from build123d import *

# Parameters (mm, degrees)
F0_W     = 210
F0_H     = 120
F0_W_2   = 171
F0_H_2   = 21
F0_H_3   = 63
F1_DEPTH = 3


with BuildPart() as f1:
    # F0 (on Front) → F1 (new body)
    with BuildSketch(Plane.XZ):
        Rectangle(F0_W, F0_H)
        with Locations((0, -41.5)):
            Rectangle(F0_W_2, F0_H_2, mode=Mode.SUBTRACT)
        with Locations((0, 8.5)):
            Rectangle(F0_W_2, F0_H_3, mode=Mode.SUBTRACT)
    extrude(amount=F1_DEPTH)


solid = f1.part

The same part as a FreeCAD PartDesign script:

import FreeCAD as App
import Part
import Sketcher


def add_polygon(sketch, points):
    """Adds a closed chain of lines whose ends are joined by coincident constraints."""
    first, n = sketch.GeometryCount, len(points)
    for a, b in zip(points, points[1:] + points[:1]):
        sketch.addGeometry(Part.LineSegment(App.Vector(*a, 0), App.Vector(*b, 0)), False)
    for i in range(n):
        sketch.addConstraint(Sketcher.Constraint("Coincident", first + i, 2, first + (i + 1) % n, 1))

doc = App.newDocument("Part")
params = doc.addObject("Spreadsheet::Sheet", "Params")
for row, (alias, value) in enumerate([
    ("sketch1_width", "210 mm"),
    ("sketch1_width2", "171 mm"),
    ("sketch1_height", "120 mm"),
    ("sketch1_height2", "21 mm"),
    ("sketch1_height3", "63 mm"),
    ("pad1_length", "3 mm"),
], start=1):
    params.set(f"A{row}", alias)
    params.set(f"B{row}", "=" + value)
    params.setAlias(f"B{row}", alias)

body = doc.addObject("PartDesign::Body", "Body")

# Sketch on XZ plane
sketch1 = body.newObject("Sketcher::SketchObject", "Sketch")
sketch1.AttachmentSupport = (doc.getObject("XZ_Plane"), [""])
sketch1.MapMode = "FlatFace"
add_polygon(sketch1, [(-105, 60), (-105, -60), (105, -60), (105, 60)])  # lines 0-3
add_polygon(sketch1, [(86, -52), (-86, -52), (-86, -31), (86, -31)])  # lines 4-7
add_polygon(sketch1, [(86, -23), (-86, -23), (-86, 40), (86, 40)])  # lines 8-11
sketch1.addConstraint(Sketcher.Constraint("Vertical", 0))
sketch1.addConstraint(Sketcher.Constraint("Horizontal", 1))
sketch1.addConstraint(Sketcher.Constraint("Vertical", 2))
sketch1.addConstraint(Sketcher.Constraint("Horizontal", 3))
sketch1.addConstraint(Sketcher.Constraint("Horizontal", 4))
sketch1.addConstraint(Sketcher.Constraint("Vertical", 5))
sketch1.addConstraint(Sketcher.Constraint("Horizontal", 6))
sketch1.addConstraint(Sketcher.Constraint("Vertical", 7))
sketch1.addConstraint(Sketcher.Constraint("Horizontal", 8))
sketch1.addConstraint(Sketcher.Constraint("Vertical", 9))
sketch1.addConstraint(Sketcher.Constraint("Horizontal", 10))
sketch1.addConstraint(Sketcher.Constraint("Vertical", 11))
sketch1.addConstraint(Sketcher.Constraint("Symmetric", 0, 2, 2, 2, -1, 1))
sketch1.addConstraint(Sketcher.Constraint("Vertical", 5, 2, 8, 2))
sketch1.addConstraint(Sketcher.Constraint("Vertical", 7, 2, 10, 2))
sketch1.addConstraint(Sketcher.Constraint("DistanceX", 1, 1, 1, 2, 210.0))
sketch1.addConstraint(Sketcher.Constraint("DistanceX", 4, 2, 4, 1, 171.0))
sketch1.addConstraint(Sketcher.Constraint("DistanceY", 0, 2, 0, 1, 120.0))
sketch1.addConstraint(Sketcher.Constraint("DistanceY", 5, 1, 5, 2, 21.0))
sketch1.addConstraint(Sketcher.Constraint("DistanceY", 9, 1, 9, 2, 63.0))
sketch1.addConstraint(Sketcher.Constraint("DistanceY", 4, 2, -1, 1, 52.0))
sketch1.addConstraint(Sketcher.Constraint("DistanceY", 8, 2, -1, 1, 23.0))
sketch1.addConstraint(Sketcher.Constraint("DistanceX", 4, 2, -1, 1, 85.5))
sketch1.setExpression("Constraints[27]", "Params.sketch1_width")
sketch1.setExpression("Constraints[28]", "Params.sketch1_width2")
sketch1.setExpression("Constraints[29]", "Params.sketch1_height")
sketch1.setExpression("Constraints[30]", "Params.sketch1_height2")
sketch1.setExpression("Constraints[31]", "Params.sketch1_height3")
pad1 = body.newObject("PartDesign::Pad", "Pad")
pad1.Profile = sketch1
pad1.setExpression("Length", "Params.pad1_length")

doc.recompute()
